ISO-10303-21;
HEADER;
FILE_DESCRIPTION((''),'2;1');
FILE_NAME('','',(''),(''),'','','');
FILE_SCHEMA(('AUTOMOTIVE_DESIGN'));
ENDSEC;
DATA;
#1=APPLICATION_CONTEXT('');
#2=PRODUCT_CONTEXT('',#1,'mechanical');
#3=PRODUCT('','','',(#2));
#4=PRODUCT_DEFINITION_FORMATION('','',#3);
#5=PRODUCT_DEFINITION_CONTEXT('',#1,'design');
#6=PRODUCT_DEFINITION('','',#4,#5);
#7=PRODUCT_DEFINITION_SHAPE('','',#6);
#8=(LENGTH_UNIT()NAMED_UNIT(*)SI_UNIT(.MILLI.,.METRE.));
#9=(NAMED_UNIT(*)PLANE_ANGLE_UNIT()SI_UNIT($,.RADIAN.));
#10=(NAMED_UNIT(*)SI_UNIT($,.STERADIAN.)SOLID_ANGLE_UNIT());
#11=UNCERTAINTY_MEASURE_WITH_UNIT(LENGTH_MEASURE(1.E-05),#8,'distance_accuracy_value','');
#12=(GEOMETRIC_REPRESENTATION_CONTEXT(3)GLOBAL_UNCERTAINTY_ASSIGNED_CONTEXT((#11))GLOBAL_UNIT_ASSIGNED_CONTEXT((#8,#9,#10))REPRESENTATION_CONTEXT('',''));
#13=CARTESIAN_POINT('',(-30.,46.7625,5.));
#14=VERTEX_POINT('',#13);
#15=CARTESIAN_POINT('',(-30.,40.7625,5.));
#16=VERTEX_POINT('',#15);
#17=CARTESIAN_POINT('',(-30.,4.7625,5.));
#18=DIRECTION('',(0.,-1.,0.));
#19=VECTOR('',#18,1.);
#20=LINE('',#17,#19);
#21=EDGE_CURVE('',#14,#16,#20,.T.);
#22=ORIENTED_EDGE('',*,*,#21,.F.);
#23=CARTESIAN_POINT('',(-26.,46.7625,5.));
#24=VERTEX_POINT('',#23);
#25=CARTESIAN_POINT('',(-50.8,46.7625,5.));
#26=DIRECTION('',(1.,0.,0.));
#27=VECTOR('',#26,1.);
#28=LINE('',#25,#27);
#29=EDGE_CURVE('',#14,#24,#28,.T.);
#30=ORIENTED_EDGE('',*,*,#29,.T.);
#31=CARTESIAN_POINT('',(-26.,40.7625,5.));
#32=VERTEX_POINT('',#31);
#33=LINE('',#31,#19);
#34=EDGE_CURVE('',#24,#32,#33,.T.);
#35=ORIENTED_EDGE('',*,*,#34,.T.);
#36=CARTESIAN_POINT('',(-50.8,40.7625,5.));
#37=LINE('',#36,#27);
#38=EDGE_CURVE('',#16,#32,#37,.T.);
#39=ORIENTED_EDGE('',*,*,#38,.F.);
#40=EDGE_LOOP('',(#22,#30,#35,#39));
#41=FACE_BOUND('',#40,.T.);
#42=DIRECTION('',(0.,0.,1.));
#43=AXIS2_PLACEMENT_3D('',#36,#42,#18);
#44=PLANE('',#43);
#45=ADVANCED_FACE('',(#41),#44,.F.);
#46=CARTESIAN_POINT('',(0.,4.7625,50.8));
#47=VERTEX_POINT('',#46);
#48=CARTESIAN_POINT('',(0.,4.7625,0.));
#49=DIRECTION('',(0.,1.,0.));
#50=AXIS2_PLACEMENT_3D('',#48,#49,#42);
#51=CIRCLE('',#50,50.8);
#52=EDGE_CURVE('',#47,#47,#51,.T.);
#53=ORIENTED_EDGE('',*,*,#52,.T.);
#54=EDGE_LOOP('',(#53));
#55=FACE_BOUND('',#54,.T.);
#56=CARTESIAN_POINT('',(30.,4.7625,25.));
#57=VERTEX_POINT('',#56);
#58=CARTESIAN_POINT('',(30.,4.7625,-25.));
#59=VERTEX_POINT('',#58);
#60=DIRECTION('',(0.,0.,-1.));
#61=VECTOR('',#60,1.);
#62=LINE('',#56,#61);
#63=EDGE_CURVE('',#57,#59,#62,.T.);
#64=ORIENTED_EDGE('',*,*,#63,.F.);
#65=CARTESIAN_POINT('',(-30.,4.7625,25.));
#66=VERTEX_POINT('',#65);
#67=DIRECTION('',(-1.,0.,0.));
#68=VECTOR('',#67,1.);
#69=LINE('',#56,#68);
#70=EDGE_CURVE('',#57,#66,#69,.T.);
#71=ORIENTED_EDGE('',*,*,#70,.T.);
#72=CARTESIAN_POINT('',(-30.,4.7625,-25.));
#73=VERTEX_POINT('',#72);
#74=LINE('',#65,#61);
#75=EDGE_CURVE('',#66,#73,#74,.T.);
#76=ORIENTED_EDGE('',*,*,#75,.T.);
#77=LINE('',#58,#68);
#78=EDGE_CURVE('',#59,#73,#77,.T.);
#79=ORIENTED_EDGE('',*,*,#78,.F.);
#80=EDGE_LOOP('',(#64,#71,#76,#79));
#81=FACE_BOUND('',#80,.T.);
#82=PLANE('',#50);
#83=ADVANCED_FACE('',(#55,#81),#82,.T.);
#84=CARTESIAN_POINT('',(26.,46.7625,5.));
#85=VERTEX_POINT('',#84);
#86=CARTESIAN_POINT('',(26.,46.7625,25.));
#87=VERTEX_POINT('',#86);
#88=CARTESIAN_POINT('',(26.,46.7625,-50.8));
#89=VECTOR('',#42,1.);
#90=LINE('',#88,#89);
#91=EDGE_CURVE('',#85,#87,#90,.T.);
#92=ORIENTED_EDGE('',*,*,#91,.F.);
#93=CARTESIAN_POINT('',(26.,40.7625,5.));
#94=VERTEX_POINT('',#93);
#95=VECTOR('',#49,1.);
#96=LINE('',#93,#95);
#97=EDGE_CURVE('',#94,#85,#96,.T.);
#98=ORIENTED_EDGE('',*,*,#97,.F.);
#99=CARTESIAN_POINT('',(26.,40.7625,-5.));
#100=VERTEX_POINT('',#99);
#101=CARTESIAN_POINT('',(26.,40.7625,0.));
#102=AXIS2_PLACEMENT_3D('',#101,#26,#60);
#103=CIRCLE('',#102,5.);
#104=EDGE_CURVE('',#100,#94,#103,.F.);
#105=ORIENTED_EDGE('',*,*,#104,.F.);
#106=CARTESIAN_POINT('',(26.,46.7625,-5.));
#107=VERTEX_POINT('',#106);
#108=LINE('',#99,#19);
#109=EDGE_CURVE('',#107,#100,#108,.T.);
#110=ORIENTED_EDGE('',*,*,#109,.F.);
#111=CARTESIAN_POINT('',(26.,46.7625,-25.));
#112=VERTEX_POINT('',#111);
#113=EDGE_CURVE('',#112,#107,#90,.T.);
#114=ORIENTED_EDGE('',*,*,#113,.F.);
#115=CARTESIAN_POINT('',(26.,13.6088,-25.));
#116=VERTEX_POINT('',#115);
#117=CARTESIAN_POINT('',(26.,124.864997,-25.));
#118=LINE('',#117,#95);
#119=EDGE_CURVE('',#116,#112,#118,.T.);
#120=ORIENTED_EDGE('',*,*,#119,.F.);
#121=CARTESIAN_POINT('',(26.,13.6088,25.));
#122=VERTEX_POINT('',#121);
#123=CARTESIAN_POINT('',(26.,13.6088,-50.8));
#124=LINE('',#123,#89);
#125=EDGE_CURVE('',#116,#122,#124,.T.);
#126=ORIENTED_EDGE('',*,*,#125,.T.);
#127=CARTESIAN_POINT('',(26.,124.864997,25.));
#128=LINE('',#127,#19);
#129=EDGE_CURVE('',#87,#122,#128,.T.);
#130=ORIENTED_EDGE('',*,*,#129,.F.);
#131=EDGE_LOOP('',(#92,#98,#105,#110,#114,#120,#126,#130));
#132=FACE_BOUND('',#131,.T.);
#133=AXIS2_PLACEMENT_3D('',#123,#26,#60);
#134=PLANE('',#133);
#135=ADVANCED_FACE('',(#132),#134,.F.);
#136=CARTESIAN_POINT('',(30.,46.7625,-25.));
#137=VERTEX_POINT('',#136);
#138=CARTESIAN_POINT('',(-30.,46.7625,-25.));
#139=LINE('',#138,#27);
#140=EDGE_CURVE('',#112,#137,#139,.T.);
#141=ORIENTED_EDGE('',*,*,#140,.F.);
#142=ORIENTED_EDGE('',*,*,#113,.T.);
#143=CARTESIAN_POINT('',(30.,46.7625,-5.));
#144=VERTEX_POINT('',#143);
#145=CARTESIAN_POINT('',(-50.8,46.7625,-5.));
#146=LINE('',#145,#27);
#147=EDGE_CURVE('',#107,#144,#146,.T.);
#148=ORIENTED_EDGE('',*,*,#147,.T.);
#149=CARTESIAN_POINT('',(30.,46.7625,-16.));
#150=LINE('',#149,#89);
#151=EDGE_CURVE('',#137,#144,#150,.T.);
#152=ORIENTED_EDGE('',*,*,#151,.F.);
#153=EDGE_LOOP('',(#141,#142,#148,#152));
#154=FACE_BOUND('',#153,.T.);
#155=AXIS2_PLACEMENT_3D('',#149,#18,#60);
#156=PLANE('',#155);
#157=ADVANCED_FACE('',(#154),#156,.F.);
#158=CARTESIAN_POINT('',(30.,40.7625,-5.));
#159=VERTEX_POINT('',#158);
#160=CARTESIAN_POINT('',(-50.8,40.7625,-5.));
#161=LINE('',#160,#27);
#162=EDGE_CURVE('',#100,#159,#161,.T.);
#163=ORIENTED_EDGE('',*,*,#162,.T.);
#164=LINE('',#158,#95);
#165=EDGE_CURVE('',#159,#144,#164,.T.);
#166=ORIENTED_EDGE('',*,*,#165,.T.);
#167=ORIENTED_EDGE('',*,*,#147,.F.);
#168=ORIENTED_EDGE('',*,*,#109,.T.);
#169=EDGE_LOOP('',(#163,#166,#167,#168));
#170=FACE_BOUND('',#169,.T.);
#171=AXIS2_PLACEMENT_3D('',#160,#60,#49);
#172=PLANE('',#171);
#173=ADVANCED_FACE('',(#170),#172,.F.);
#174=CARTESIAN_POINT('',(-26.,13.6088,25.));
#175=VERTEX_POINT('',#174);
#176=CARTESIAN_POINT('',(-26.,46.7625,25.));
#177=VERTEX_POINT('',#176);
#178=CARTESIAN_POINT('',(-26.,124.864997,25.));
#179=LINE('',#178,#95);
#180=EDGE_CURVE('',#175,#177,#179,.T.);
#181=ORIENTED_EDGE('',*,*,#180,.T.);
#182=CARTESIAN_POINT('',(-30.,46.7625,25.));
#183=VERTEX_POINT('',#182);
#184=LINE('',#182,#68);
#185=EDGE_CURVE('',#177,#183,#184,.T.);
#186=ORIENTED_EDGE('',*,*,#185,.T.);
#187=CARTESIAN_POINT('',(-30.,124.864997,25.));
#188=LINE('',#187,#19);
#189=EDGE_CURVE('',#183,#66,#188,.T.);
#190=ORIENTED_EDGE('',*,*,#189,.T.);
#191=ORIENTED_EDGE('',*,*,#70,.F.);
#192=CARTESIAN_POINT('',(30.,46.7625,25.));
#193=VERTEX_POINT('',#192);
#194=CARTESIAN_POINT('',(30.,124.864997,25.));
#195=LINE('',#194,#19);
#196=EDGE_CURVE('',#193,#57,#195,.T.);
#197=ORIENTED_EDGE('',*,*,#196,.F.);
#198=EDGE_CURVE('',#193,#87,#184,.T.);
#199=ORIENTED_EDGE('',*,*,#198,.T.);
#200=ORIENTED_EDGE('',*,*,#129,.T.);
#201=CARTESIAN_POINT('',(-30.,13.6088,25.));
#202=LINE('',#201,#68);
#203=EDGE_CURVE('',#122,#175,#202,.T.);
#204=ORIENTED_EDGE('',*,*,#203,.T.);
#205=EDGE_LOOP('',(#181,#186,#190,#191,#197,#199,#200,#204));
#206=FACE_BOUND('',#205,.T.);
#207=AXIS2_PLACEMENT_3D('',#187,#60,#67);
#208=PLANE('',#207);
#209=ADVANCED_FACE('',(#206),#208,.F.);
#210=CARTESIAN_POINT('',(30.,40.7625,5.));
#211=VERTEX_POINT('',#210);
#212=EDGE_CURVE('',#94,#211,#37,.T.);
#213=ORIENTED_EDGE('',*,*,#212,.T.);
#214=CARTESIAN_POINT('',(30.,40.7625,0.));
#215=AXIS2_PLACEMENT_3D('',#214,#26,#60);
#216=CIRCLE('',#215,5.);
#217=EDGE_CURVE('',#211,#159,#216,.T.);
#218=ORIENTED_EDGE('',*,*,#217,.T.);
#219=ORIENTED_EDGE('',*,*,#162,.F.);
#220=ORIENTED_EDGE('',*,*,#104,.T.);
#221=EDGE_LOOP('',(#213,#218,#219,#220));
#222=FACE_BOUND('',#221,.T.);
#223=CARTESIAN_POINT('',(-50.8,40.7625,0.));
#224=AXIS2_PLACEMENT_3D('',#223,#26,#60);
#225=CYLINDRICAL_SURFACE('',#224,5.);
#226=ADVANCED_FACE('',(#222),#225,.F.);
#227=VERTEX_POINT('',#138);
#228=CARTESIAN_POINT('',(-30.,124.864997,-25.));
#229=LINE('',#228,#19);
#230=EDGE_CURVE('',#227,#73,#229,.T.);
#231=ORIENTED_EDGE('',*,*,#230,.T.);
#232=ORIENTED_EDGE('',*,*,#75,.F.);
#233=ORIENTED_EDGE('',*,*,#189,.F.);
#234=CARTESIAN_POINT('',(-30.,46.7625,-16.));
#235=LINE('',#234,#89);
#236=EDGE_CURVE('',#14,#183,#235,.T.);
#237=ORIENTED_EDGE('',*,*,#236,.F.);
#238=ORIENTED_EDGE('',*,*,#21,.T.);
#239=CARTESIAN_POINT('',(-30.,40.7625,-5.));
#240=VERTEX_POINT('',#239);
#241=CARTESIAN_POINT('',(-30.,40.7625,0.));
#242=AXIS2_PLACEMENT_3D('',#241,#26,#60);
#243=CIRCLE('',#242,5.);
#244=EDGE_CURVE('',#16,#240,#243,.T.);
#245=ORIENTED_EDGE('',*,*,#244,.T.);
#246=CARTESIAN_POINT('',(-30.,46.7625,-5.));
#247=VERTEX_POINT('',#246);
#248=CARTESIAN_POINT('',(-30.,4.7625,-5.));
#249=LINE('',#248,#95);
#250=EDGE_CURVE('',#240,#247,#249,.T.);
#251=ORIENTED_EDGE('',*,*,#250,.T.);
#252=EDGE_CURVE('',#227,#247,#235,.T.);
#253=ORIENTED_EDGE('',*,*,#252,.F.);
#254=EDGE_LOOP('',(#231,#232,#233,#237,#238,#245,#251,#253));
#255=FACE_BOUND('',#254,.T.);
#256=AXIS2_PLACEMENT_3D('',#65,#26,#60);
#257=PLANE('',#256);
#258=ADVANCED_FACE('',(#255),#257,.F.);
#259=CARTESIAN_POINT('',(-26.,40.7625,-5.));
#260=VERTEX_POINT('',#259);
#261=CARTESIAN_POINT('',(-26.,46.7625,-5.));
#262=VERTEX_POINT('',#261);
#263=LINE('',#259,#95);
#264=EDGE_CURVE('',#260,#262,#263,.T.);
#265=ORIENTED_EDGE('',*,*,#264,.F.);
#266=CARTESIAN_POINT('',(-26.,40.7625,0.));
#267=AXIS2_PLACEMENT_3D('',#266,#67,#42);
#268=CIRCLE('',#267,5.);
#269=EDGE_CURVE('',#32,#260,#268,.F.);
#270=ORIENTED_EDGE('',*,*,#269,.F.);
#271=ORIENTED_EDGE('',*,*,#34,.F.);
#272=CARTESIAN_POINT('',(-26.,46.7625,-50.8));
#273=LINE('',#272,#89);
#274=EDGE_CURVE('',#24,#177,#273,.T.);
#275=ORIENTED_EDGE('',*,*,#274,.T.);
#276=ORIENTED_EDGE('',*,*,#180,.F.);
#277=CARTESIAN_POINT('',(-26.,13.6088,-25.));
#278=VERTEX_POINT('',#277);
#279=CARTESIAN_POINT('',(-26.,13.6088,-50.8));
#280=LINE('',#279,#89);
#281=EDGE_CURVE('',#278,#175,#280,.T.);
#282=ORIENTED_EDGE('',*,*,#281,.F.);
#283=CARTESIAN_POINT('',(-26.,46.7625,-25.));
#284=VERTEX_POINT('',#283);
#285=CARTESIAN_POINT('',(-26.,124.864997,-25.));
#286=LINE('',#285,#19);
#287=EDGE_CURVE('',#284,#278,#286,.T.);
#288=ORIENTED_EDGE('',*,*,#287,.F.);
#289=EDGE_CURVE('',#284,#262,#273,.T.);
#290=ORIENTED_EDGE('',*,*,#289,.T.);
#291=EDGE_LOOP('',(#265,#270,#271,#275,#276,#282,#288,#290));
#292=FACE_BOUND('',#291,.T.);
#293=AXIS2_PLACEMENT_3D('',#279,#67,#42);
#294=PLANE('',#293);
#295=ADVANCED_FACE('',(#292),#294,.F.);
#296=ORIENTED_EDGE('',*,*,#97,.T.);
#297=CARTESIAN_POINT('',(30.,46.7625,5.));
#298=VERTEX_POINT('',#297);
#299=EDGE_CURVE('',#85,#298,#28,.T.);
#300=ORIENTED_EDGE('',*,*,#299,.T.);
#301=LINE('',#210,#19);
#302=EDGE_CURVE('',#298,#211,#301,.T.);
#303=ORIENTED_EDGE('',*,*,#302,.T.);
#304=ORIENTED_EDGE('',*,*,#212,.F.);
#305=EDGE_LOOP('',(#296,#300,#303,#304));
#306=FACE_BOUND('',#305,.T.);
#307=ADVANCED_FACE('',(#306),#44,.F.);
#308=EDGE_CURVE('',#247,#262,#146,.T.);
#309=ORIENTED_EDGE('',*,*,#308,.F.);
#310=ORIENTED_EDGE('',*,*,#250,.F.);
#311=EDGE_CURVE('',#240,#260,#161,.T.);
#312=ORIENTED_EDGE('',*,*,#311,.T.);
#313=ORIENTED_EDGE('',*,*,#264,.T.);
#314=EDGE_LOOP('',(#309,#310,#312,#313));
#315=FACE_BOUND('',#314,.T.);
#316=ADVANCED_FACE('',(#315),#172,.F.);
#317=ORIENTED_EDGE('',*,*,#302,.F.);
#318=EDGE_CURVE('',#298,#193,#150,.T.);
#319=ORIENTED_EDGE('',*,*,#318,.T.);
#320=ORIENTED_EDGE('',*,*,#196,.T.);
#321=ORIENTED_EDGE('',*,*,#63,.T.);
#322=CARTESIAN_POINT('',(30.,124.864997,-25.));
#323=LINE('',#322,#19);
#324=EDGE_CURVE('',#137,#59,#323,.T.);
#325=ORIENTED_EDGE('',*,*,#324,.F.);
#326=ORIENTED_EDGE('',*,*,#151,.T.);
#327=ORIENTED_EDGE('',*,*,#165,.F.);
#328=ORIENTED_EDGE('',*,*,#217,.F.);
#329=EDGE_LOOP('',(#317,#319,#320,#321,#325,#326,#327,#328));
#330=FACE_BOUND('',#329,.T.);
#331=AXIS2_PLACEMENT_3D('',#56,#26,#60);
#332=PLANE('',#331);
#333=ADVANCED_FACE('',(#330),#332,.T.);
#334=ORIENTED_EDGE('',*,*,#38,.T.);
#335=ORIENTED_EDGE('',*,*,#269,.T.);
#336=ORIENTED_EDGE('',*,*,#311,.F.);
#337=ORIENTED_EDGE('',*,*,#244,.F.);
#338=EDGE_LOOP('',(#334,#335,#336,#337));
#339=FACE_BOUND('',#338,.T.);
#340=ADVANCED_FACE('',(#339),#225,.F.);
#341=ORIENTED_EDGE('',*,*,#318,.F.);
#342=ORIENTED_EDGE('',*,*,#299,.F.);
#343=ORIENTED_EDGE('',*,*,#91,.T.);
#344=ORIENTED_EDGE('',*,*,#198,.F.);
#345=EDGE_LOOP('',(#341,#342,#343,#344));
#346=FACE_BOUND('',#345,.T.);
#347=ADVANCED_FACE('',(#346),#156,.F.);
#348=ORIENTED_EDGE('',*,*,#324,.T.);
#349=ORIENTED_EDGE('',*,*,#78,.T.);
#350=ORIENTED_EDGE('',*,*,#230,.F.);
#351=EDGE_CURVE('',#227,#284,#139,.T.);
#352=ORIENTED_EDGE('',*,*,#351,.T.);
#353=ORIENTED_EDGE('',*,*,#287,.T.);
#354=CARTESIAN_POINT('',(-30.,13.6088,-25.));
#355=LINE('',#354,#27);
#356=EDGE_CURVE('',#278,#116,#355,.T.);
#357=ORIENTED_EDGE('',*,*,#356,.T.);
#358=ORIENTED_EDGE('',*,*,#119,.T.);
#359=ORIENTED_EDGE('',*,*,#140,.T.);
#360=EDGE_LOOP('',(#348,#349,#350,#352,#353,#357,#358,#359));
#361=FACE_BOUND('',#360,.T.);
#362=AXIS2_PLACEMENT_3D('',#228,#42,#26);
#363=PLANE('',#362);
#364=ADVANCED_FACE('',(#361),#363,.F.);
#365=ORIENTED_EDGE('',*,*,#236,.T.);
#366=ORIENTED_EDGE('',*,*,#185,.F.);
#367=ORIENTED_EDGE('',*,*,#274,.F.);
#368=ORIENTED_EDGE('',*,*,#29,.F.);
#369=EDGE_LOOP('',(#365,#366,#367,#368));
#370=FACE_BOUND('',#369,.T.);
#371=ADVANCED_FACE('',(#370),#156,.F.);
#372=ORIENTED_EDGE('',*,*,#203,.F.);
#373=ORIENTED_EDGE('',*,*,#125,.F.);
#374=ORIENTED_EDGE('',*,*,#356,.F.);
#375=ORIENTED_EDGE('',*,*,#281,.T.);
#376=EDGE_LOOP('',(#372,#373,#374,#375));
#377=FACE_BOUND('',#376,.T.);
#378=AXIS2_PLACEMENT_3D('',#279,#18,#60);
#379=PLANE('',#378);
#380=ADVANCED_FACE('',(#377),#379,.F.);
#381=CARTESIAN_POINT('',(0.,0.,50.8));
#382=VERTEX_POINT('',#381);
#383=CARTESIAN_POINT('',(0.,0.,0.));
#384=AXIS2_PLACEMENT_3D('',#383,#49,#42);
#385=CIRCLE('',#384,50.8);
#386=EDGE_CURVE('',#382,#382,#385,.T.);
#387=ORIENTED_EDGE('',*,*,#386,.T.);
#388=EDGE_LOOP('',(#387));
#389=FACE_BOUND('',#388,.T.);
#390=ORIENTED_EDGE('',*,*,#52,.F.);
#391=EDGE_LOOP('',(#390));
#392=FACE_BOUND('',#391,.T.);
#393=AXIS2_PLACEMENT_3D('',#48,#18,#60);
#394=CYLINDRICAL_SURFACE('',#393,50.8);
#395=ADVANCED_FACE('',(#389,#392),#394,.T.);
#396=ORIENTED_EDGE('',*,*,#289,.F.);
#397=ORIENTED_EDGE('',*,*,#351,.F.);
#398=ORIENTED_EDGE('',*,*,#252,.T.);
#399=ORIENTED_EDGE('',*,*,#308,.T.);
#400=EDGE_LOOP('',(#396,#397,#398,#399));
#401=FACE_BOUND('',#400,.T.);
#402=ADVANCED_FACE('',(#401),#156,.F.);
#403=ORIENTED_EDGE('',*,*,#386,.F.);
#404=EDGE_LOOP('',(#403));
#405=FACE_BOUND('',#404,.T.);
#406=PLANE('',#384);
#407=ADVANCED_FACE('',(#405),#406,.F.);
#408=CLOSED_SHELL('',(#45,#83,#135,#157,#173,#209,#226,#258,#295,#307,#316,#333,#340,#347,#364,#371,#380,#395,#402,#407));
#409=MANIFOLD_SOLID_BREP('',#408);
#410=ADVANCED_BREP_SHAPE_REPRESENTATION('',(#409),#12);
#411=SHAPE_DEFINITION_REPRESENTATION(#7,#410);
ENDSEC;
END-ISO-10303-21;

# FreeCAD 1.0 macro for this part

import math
import FreeCAD as App
import Part
import Sketcher

doc = App.newDocument("Part")
body = doc.addObject("PartDesign::Body", "Body")

# Sketch on XZ plane
sketch1 = body.newObject("Sketcher::SketchObject", "Sketch")
sketch1.AttachmentSupport = (doc.getObject("XZ_Plane"), [""])
sketch1.MapMode = "FlatFace"
sketch1.addGeometry(Part.Circle(App.Vector(0, 0, 0), App.Vector(0, 0, 1), 51), False)
sketch1.addConstraint(Sketcher.Constraint("Coincident", 0, 3, -1, 1))
sketch1.addConstraint(Sketcher.Constraint("Diameter", 0, 101.6))
pad1 = body.newObject("PartDesign::Pad", "Pad")
pad1.Profile = sketch1
pad1.Length = 4.7625
pad1.Reversed = True

# Sketch on YZ plane
sketch2 = body.newObject("Sketcher::SketchObject", "Sketch001")
sketch2.AttachmentSupport = (doc.getObject("YZ_Plane"), [""])
sketch2.MapMode = "FlatFace"
sketch2.addGeometry(Part.LineSegment(App.Vector(5, 25, 0), App.Vector(5, -25, 0)), False)
sketch2.addGeometry(Part.LineSegment(App.Vector(5, -25, 0), App.Vector(47, -16, 0)), False)
sketch2.addGeometry(Part.LineSegment(App.Vector(47, -16, 0), App.Vector(47, 16, 0)), False)
sketch2.addGeometry(Part.LineSegment(App.Vector(47, 16, 0), App.Vector(5, 25, 0)), False)
sketch2.addConstraint(Sketcher.Constraint("Coincident", 0, 2, 1, 1))
sketch2.addConstraint(Sketcher.Constraint("Coincident", 1, 2, 2, 1))
sketch2.addConstraint(Sketcher.Constraint("Coincident", 2, 2, 3, 1))
sketch2.addConstraint(Sketcher.Constraint("Coincident", 3, 2, 0, 1))
sketch2.addConstraint(Sketcher.Constraint("Vertical", 0))
sketch2.addConstraint(Sketcher.Constraint("Vertical", 2))
sketch2.addConstraint(Sketcher.Constraint("Equal", 1, 3))
sketch2.addConstraint(Sketcher.Constraint("DistanceY", 0, 2, 0, 1, 50.0))
sketch2.addConstraint(Sketcher.Constraint("DistanceY", 2, 1, 2, 2, 32.0))
sketch2.addConstraint(Sketcher.Constraint("DistanceY", 0, 2, -1, 1, 25.0))
sketch2.addConstraint(Sketcher.Constraint("DistanceX", 0, 2, 1, 2, 42.0))
sketch2.addConstraint(Sketcher.Constraint("DistanceX", -1, 1, 0, 2, 4.7625))
pad2 = body.newObject("PartDesign::Pad", "Pad001")
pad2.Profile = sketch2
pad2.Length = 60
pad2.Midplane = True

# Sketch on XZ plane
sketch3 = body.newObject("Sketcher::SketchObject", "Sketch002")
sketch3.AttachmentSupport = (doc.getObject("XZ_Plane"), [""])
sketch3.MapMode = "FlatFace"
sketch3.addGeometry(Part.LineSegment(App.Vector(30, 25, 0), App.Vector(30, -25, 0)), False)
sketch3.addGeometry(Part.LineSegment(App.Vector(30, -25, 0), App.Vector(-30, -25, 0)), False)
sketch3.addGeometry(Part.LineSegment(App.Vector(-30, -25, 0), App.Vector(-30, 25, 0)), False)
sketch3.addGeometry(Part.LineSegment(App.Vector(-30, 25, 0), App.Vector(30, 25, 0)), False)
sketch3.addConstraint(Sketcher.Constraint("Coincident", 0, 2, 1, 1))
sketch3.addConstraint(Sketcher.Constraint("Coincident", 1, 2, 2, 1))
sketch3.addConstraint(Sketcher.Constraint("Coincident", 2, 2, 3, 1))
sketch3.addConstraint(Sketcher.Constraint("Coincident", 3, 2, 0, 1))
sketch3.addConstraint(Sketcher.Constraint("Vertical", 0))
sketch3.addConstraint(Sketcher.Constraint("Horizontal", 1))
sketch3.addConstraint(Sketcher.Constraint("Vertical", 2))
sketch3.addConstraint(Sketcher.Constraint("Horizontal", 3))
sketch3.addConstraint(Sketcher.Constraint("Symmetric", 0, 2, 2, 2, -1, 1))
sketch3.addConstraint(Sketcher.Constraint("DistanceX", 1, 2, 1, 1, 60.0))
sketch3.addConstraint(Sketcher.Constraint("DistanceY", 0, 2, 0, 1, 50.0))
pad3 = body.newObject("PartDesign::Pad", "Pad002")
pad3.Profile = sketch3
pad3.Length = 46.7625
pad3.Reversed = True

# Sketch on YZ plane
sketch4 = body.newObject("Sketcher::SketchObject", "Sketch003")
sketch4.AttachmentSupport = (doc.getObject("YZ_Plane"), [""])
sketch4.MapMode = "FlatFace"
sketch4.AttachmentOffset = App.Placement(App.Vector(0, 0, 30), App.Rotation())
sketch4.addGeometry(Part.LineSegment(App.Vector(41, -5, 0), App.Vector(47, -5, 0)), False)
sketch4.addGeometry(Part.LineSegment(App.Vector(47, -5, 0), App.Vector(47, 5, 0)), False)
sketch4.addGeometry(Part.LineSegment(App.Vector(47, 5, 0), App.Vector(41, 5, 0)), False)
sketch4.addGeometry(Part.ArcOfCircle(Part.Circle(App.Vector(41, 0, 0), App.Vector(0, 0, 1), 5), math.radians(90), math.radians(270)), False)
sketch4.addConstraint(Sketcher.Constraint("Coincident", 0, 2, 1, 1))
sketch4.addConstraint(Sketcher.Constraint("Coincident", 1, 2, 2, 1))
sketch4.addConstraint(Sketcher.Constraint("Tangent", 2, 2, 3, 1))
sketch4.addConstraint(Sketcher.Constraint("Tangent", 3, 2, 0, 1))
sketch4.addConstraint(Sketcher.Constraint("Horizontal", 0))
sketch4.addConstraint(Sketcher.Constraint("Vertical", 1))
sketch4.addConstraint(Sketcher.Constraint("Horizontal", 2))
sketch4.addConstraint(Sketcher.Constraint("PointOnObject", 3, 3, -1))
sketch4.addConstraint(Sketcher.Constraint("Radius", 3, 5.0))
sketch4.addConstraint(Sketcher.Constraint("DistanceX", 0, 1, 0, 2, 6.0))
sketch4.addConstraint(Sketcher.Constraint("DistanceX", -1, 1, 3, 3, 40.7625))
pocket1 = body.newObject("PartDesign::Pocket", "Pocket")
pocket1.Profile = sketch4
pocket1.Type = "ThroughAll"

# Sketch on XY plane
sketch5 = body.newObject("Sketcher::SketchObject", "Sketch004")
sketch5.AttachmentSupport = (doc.getObject("XY_Plane"), [""])
sketch5.MapMode = "FlatFace"
sketch5.addGeometry(Part.LineSegment(App.Vector(-26, 47, 0), App.Vector(-26, 14, 0)), False)
sketch5.addGeometry(Part.LineSegment(App.Vector(-26, 14, 0), App.Vector(26, 14, 0)), False)
sketch5.addGeometry(Part.LineSegment(App.Vector(26, 14, 0), App.Vector(26, 47, 0)), False)
sketch5.addGeometry(Part.LineSegment(App.Vector(26, 47, 0), App.Vector(-26, 47, 0)), False)
sketch5.addConstraint(Sketcher.Constraint("Coincident", 0, 2, 1, 1))
sketch5.addConstraint(Sketcher.Constraint("Coincident", 1, 2, 2, 1))
sketch5.addConstraint(Sketcher.Constraint("Coincident", 2, 2, 3, 1))
sketch5.addConstraint(Sketcher.Constraint("Coincident", 3, 2, 0, 1))
sketch5.addConstraint(Sketcher.Constraint("Vertical", 0))
sketch5.addConstraint(Sketcher.Constraint("Horizontal", 1))
sketch5.addConstraint(Sketcher.Constraint("Vertical", 2))
sketch5.addConstraint(Sketcher.Constraint("Horizontal", 3))
sketch5.addConstraint(Sketcher.Constraint("DistanceX", 1, 1, 1, 2, 52.0))
sketch5.addConstraint(Sketcher.Constraint("DistanceX", 0, 2, -1, 1, 26.0))
sketch5.addConstraint(Sketcher.Constraint("DistanceY", 0, 2, 0, 1, 33.1537))
sketch5.addConstraint(Sketcher.Constraint("DistanceY", -1, 1, 0, 2, 13.6088))
pocket2 = body.newObject("PartDesign::Pocket", "Pocket001")
pocket2.Profile = sketch5
pocket2.Type = "ThroughAll"
pocket2.Midplane = True

doc.recompute()
